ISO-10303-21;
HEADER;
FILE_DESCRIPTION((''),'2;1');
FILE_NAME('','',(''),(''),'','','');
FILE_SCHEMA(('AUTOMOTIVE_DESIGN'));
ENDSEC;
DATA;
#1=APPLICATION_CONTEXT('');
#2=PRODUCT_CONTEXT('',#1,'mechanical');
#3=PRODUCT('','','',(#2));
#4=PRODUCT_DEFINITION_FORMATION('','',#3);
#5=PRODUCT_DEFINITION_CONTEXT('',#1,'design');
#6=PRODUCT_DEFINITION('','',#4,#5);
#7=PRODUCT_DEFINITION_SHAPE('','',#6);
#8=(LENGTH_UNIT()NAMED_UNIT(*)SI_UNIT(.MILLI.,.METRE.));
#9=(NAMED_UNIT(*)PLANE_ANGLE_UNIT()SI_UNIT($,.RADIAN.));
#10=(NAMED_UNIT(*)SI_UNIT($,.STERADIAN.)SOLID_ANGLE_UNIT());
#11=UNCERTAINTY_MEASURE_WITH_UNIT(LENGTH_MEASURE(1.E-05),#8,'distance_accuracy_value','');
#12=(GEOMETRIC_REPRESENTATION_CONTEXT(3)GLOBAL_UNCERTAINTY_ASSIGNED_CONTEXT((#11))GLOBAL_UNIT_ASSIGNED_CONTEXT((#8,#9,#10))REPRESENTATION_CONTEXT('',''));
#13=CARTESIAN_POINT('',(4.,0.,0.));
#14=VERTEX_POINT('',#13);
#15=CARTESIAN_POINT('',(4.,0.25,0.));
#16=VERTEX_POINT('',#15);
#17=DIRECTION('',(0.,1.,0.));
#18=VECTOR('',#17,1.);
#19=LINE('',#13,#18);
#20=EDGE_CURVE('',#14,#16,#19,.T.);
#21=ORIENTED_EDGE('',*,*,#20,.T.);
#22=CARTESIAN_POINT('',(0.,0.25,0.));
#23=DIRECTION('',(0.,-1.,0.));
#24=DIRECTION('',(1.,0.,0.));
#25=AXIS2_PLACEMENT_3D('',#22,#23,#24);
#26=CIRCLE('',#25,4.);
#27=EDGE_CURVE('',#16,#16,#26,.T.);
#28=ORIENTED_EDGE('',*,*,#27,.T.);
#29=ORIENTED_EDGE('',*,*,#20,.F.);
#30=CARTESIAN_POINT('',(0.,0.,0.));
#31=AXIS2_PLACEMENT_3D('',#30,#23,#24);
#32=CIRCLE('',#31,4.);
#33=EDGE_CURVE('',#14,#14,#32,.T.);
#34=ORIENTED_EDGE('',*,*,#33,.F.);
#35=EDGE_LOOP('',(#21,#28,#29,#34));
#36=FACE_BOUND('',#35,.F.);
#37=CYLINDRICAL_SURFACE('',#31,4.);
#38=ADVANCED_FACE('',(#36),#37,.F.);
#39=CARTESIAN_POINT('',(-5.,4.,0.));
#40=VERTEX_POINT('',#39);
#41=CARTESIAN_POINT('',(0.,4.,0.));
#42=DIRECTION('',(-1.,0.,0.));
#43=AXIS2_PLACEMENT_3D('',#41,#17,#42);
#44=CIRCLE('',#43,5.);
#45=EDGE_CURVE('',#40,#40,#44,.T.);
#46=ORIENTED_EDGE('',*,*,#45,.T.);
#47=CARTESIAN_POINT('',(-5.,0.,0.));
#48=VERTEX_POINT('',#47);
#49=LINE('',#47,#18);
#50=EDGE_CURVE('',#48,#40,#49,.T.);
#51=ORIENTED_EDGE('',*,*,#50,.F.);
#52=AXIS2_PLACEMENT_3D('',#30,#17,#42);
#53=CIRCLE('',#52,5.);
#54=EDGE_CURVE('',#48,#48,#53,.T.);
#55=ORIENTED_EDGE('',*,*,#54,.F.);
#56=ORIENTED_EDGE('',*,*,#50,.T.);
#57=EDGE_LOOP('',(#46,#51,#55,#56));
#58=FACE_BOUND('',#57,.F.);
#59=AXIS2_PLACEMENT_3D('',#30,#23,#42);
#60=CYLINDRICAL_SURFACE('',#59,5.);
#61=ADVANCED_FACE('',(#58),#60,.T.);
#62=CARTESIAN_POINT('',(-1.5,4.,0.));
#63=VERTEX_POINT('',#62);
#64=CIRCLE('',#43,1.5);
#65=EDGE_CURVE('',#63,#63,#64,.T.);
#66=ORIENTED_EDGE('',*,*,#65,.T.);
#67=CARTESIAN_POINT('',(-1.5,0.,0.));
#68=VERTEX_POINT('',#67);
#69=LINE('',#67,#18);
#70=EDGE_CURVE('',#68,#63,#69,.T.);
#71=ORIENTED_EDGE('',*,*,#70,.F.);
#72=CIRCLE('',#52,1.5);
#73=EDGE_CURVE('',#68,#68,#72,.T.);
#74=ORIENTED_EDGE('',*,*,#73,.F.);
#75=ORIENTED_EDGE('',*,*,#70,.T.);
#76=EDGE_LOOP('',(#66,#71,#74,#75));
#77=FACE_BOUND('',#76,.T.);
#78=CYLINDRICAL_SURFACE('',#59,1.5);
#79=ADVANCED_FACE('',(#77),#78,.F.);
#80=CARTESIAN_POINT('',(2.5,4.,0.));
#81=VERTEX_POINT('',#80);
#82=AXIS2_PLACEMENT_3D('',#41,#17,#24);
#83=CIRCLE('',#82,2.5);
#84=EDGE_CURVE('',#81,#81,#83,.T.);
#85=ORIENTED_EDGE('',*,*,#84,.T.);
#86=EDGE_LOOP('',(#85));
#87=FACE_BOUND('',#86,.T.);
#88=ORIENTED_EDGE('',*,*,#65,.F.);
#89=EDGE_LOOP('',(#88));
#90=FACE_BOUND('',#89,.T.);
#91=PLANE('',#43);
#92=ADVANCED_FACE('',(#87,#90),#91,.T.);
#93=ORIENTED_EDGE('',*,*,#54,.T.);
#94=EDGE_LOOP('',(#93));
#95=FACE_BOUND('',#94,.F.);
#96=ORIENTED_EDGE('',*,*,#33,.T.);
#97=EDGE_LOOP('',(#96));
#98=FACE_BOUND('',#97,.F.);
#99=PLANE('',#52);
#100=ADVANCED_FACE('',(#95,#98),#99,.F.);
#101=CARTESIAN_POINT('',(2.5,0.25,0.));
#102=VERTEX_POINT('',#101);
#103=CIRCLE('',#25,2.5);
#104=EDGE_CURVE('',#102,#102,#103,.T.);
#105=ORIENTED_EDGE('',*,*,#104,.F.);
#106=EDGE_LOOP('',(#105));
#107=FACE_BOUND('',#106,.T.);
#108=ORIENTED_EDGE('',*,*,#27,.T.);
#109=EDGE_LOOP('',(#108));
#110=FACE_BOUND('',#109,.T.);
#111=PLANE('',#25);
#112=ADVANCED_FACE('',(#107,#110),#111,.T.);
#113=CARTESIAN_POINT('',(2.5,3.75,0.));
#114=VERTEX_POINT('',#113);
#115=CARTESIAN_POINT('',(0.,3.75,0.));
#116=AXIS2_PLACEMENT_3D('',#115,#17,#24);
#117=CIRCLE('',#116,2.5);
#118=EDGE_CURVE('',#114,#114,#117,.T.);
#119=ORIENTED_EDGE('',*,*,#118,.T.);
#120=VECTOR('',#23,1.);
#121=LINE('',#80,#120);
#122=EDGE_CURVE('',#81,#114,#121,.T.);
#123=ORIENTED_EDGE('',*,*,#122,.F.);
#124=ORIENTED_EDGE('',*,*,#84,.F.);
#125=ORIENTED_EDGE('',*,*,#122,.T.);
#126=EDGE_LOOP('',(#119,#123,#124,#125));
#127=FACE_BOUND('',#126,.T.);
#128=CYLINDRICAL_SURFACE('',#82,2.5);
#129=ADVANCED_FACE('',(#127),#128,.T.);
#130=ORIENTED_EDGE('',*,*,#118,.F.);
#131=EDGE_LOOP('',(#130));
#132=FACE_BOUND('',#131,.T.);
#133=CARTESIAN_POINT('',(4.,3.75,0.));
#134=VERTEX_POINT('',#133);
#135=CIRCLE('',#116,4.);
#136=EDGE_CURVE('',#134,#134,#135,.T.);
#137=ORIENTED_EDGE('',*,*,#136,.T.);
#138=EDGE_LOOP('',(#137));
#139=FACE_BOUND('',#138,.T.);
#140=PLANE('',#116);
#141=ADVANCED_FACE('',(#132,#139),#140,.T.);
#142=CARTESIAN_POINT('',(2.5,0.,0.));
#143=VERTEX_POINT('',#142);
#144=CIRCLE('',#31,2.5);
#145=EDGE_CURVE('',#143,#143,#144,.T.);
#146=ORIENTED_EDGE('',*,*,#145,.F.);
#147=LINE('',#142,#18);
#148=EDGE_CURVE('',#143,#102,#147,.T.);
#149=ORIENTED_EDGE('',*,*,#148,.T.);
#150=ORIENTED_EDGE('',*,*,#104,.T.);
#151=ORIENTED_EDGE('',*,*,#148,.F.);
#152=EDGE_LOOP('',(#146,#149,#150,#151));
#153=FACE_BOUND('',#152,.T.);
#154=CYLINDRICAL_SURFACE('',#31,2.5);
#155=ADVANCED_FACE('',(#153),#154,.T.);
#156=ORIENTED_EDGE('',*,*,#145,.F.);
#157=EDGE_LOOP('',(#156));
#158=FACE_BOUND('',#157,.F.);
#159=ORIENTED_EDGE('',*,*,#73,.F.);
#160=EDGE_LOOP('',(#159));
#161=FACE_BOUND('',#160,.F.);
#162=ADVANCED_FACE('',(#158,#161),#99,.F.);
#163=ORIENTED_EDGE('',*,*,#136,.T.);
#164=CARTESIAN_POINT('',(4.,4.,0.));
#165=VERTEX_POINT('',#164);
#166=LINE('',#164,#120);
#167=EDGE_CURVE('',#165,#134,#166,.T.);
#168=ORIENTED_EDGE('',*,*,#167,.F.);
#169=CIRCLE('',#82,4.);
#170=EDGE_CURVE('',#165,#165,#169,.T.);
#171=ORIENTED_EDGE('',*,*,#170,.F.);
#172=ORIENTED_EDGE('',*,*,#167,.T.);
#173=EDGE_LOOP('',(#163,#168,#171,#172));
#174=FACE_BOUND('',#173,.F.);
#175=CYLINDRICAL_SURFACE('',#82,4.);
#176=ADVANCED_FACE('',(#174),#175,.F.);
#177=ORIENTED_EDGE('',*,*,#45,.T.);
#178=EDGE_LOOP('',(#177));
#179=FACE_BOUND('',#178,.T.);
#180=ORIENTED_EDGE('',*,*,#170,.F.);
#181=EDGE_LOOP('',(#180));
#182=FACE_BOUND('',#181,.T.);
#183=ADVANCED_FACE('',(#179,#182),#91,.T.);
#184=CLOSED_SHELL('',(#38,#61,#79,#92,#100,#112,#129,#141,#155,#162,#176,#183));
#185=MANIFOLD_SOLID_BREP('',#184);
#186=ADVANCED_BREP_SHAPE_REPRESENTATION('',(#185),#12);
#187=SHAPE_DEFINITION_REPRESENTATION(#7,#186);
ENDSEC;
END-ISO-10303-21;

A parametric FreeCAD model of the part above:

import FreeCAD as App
import Part
import Sketcher

doc = App.newDocument("Part")
body = doc.addObject("PartDesign::Body", "Body")

sketch1 = body.newObject("Sketcher::SketchObject", "Sketch")
sketch1.AttachmentSupport = (doc.getObject("XZ_Plane"), [""])
sketch1.MapMode = "FlatFace"
sketch1.addGeometry([
    Part.Circle(App.Vector(0, 0, 0), App.Vector(0, 0, 1), 5),
    Part.Circle(App.Vector(0, 0, 0), App.Vector(0, 0, 1), 1.5),
], False)
sketch1.addConstraint([
    Sketcher.Constraint("Coincident", 0, 3, -1, 1),
    Sketcher.Constraint("Coincident", 1, 3, -1, 1),
    Sketcher.Constraint("Diameter", 0, 10.0),
    Sketcher.Constraint("Diameter", 1, 3.0),
])
pad1 = body.newObject("PartDesign::Pad", "Pad")
pad1.Profile = sketch1
pad1.Length = 4
pad1.Reversed = True

sketch2 = body.newObject("Sketcher::SketchObject", "Sketch001")
sketch2.AttachmentSupport = (doc.getObject("XZ_Plane"), [""])
sketch2.MapMode = "FlatFace"
sketch2.AttachmentOffset = App.Placement(App.Vector(0, 0, -4), App.Rotation())
sketch2.addGeometry([
    Part.Circle(App.Vector(0, 0, 0), App.Vector(0, 0, 1), 4),
    Part.Circle(App.Vector(0, 0, 0), App.Vector(0, 0, 1), 2.5),
], False)
sketch2.addConstraint([
    Sketcher.Constraint("Coincident", 0, 3, -1, 1),
    Sketcher.Constraint("Coincident", 1, 3, -1, 1),
    Sketcher.Constraint("Diameter", 0, 8.0),
    Sketcher.Constraint("Diameter", 1, 5.0),
])
pocket1 = body.newObject("PartDesign::Pocket", "Pocket")
pocket1.Profile = sketch2
pocket1.Length = 0.25
pocket1.Reversed = True

sketch3 = body.newObject("Sketcher::SketchObject", "Sketch002")
sketch3.AttachmentSupport = (doc.getObject("XZ_Plane"), [""])
sketch3.MapMode = "FlatFace"
sketch3.addGeometry([
    Part.Circle(App.Vector(0, 0, 0), App.Vector(0, 0, 1), 4),
    Part.Circle(App.Vector(0, 0, 0), App.Vector(0, 0, 1), 2.5),
], False)
sketch3.addConstraint([
    Sketcher.Constraint("Coincident", 0, 3, -1, 1),
    Sketcher.Constraint("Coincident", 1, 3, -1, 1),
    Sketcher.Constraint("Diameter", 0, 8.0),
    Sketcher.Constraint("Diameter", 1, 5.0),
])
pocket2 = body.newObject("PartDesign::Pocket", "Pocket001")
pocket2.Profile = sketch3
pocket2.Length = 0.25

doc.recompute()
